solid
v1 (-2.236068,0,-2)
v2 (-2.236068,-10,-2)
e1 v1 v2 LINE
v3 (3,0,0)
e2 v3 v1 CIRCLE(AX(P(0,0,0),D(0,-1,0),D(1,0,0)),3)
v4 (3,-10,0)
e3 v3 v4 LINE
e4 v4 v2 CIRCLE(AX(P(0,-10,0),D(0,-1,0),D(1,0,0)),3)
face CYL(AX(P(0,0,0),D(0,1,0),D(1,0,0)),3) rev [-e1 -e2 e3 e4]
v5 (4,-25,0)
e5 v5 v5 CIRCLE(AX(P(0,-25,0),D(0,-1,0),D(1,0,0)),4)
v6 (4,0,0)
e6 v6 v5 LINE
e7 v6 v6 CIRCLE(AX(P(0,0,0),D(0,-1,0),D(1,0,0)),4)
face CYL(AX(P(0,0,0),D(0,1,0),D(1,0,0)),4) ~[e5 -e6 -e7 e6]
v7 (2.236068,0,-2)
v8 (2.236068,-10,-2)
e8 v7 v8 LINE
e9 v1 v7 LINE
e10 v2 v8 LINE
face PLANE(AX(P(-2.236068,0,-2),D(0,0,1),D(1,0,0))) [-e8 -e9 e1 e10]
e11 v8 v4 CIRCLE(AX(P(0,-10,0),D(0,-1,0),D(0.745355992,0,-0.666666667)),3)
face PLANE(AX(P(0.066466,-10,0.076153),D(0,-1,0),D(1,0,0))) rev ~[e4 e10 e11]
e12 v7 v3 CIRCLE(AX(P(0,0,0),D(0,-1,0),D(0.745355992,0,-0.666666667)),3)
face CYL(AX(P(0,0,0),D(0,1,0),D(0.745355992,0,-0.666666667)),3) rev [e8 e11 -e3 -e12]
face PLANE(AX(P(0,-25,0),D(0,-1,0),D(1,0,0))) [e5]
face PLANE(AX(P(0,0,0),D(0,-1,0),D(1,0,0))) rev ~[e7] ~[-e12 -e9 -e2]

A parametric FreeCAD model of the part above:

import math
import FreeCAD as App
import Part
import Sketcher
Q = App.Units.Quantity

doc = App.newDocument("Part")
params = doc.addObject("Spreadsheet::Sheet", "Params")
for row, (alias, value) in enumerate([
    ("sketch1_diameter", "8 mm"),
    ("pad1_length", "25 mm"),
    ("sketch2_radius", "3 mm"),
    ("pocket1_length", "10 mm"),
], start=1):
    params.set(f"A{row}", alias)
    params.set(f"B{row}", "=" + value)
    params.setAlias(f"B{row}", alias)

body = doc.addObject("PartDesign::Body", "Body")

# Sketch on XZ plane
sketch1 = body.newObject("Sketcher::SketchObject", "Sketch")
sketch1.AttachmentSupport = (doc.getObject("XZ_Plane"), [""])
sketch1.MapMode = "FlatFace"
sketch1.addGeometry(Part.Circle(App.Vector(0, 0, 0), App.Vector(0, 0, 1), 4), False)
sketch1.addConstraint([
    Sketcher.Constraint("Coincident", 0, 3, -1, 1),
    Sketcher.Constraint("Diameter", 0, Q("8 mm")),
])
sketch1.setExpression("Constraints[1]", "Params.sketch1_diameter")
pad1 = body.newObject("PartDesign::Pad", "Pad")
pad1.Profile = sketch1
pad1.setExpression("Length", "Params.pad1_length")

# Sketch on XZ plane
sketch2 = body.newObject("Sketcher::SketchObject", "Sketch001")
sketch2.AttachmentSupport = (doc.getObject("XZ_Plane"), [""])
sketch2.MapMode = "FlatFace"
sketch2.addGeometry([
    Part.ArcOfCircle(Part.Circle(App.Vector(0, 0, 0), App.Vector(0, 0, 1), 3), math.radians(-42), math.radians(0)),
    Part.ArcOfCircle(Part.Circle(App.Vector(0, 0, 0), App.Vector(0, 0, 1), 3), math.radians(0), math.radians(222)),
    Part.LineSegment(App.Vector(-2.2, -2, 0), App.Vector(2.2, -2, 0)),
], False)
sketch2.addConstraint([
    Sketcher.Constraint("Tangent", 0, 2, 1, 1),
    Sketcher.Constraint("Coincident", 1, 2, 2, 1),
    Sketcher.Constraint("Coincident", 2, 2, 0, 1),
    Sketcher.Constraint("Horizontal", 2),
    Sketcher.Constraint("Coincident", 0, 3, -1, 1),
    Sketcher.Constraint("Equal", 0, 1),
    Sketcher.Constraint("PointOnObject", 0, 2, -1),
    Sketcher.Constraint("Radius", 0, Q("3 mm")),
    Sketcher.Constraint("DistanceY", 1, 2, -1, 1, Q("2 mm")),
])
sketch2.setExpression("Constraints[7]", "Params.sketch2_radius")
pocket1 = body.newObject("PartDesign::Pocket", "Pocket")
pocket1.Profile = sketch2
pocket1.setExpression("Length", "Params.pocket1_length")
pocket1.Reversed = True

doc.recompute()
